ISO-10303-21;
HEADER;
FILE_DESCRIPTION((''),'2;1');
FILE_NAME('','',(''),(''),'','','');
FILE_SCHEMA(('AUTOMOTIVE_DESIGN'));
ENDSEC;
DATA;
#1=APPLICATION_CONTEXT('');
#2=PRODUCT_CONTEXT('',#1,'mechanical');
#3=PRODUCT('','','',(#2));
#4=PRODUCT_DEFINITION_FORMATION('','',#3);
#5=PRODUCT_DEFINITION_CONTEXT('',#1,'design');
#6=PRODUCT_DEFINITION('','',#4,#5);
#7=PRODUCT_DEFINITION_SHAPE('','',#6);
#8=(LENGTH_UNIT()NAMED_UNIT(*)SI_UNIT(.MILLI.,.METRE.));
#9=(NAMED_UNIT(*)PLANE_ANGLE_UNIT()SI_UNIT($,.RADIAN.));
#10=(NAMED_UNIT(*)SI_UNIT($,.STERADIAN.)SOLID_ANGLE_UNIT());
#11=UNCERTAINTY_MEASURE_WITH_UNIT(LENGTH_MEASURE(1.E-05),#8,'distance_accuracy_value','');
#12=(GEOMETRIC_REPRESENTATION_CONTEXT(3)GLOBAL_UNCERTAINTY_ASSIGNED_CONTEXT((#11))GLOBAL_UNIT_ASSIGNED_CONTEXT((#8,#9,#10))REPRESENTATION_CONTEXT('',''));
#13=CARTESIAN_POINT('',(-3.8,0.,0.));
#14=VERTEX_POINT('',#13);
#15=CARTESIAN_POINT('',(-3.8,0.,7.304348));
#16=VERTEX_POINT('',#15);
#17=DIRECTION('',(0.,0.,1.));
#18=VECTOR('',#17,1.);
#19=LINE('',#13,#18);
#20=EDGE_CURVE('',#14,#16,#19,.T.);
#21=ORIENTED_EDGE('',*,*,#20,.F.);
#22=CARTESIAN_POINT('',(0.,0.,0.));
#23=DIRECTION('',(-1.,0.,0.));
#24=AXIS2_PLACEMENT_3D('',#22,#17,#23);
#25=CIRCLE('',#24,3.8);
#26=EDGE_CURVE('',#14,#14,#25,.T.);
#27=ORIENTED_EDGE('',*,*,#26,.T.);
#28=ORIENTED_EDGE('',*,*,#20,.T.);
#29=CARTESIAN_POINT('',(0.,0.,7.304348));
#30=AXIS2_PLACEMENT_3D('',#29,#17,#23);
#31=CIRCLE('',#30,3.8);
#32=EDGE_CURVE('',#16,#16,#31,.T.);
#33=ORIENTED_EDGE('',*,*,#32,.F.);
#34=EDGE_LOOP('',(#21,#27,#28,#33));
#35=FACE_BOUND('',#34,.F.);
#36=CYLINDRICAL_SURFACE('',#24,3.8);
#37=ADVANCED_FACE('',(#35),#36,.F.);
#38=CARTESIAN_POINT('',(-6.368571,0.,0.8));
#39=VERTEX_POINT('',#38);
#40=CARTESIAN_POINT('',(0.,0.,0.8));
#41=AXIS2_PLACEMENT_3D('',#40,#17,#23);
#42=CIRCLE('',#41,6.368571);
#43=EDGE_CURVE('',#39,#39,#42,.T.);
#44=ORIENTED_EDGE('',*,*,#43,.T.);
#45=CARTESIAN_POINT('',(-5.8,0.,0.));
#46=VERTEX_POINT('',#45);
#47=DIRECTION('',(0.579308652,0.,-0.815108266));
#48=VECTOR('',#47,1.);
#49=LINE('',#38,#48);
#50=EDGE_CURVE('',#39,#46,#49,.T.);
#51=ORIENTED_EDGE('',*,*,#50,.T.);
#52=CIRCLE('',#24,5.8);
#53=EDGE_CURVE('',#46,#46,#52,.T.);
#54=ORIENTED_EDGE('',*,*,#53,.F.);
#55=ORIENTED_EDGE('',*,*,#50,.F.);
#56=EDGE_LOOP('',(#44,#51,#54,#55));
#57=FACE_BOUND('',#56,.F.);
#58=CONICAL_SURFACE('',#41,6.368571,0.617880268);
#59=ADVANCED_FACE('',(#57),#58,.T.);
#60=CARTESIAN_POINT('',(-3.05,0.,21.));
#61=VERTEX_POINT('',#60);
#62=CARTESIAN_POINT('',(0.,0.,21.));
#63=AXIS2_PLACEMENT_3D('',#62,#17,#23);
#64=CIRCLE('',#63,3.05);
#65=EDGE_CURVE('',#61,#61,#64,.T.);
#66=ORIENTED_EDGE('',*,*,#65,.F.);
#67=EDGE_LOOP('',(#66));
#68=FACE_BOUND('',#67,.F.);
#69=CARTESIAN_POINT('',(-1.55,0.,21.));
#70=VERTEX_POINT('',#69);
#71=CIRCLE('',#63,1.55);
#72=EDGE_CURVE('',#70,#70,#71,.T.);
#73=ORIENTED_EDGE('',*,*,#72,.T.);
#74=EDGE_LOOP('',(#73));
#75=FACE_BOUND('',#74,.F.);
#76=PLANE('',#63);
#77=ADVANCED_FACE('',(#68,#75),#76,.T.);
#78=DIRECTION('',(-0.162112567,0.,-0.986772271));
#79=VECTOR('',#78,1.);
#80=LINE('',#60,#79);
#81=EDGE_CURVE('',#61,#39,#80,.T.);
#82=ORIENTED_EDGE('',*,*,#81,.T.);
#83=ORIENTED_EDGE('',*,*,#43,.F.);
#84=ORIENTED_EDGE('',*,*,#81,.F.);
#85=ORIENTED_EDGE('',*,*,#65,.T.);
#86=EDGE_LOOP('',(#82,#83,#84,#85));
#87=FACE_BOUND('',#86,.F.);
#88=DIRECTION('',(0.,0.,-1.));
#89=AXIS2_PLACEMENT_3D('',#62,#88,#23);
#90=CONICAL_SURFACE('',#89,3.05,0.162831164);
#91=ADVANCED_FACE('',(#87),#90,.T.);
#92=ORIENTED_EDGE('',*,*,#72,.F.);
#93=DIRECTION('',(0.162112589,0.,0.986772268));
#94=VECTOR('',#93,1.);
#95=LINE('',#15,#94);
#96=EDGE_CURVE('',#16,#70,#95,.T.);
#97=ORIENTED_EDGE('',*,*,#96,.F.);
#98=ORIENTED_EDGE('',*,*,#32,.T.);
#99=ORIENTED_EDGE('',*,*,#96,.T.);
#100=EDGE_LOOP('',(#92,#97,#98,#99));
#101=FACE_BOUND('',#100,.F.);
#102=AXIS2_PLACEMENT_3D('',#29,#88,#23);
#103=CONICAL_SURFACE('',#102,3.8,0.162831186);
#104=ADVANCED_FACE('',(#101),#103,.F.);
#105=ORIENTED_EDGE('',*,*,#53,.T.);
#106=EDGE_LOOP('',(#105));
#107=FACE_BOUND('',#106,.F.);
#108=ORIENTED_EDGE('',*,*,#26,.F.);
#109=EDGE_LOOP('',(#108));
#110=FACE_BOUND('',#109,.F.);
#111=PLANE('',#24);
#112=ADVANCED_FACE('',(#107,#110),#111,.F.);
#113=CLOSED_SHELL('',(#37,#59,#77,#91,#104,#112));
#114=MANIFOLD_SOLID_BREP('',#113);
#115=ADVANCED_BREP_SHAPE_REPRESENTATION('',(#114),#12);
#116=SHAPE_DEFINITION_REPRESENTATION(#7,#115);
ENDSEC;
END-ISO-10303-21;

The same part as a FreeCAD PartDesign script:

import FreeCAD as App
import Part
import Sketcher

V = App.Vector

doc = App.newDocument("Part")
body = doc.addObject("PartDesign::Body", "Body")

# Sketch on XZ plane
sketch1 = body.newObject("Sketcher::SketchObject", "Sketch")
sketch1.AttachmentSupport = (doc.getObject("XZ_Plane"), [""])
sketch1.MapMode = "FlatFace"
sketch1.addGeometry([
    Part.LineSegment(V(-5.8, 0, 0), V(-3.8, 0, 0)),  # 0
    Part.LineSegment(V(-3.8, 0, 0), V(-3.8, 7.3, 0)),  # 1
    Part.LineSegment(V(-3.8, 7.3, 0), V(-1.6, 21, 0)),  # 2
    Part.LineSegment(V(-1.6, 21, 0), V(-3, 21, 0)),  # 3
    Part.LineSegment(V(-3, 21, 0), V(-6.4, 0.8, 0)),  # 4
    Part.LineSegment(V(-6.4, 0.8, 0), V(-5.8, 0, 0)),  # 5
], False)
sketch1.addConstraint([
    Sketcher.Constraint("Coincident", 0, 2, 1, 1),
    Sketcher.Constraint("Coincident", 1, 2, 2, 1),
    Sketcher.Constraint("Coincident", 2, 2, 3, 1),
    Sketcher.Constraint("Coincident", 3, 2, 4, 1),
    Sketcher.Constraint("Coincident", 4, 2, 5, 1),
    Sketcher.Constraint("Coincident", 5, 2, 0, 1),
    Sketcher.Constraint("Horizontal", 0),
    Sketcher.Constraint("Vertical", 1),
    Sketcher.Constraint("Horizontal", 3),
    Sketcher.Constraint("PointOnObject", 0, 2, -1),
    Sketcher.Constraint("Parallel", 2, 4),
    Sketcher.Constraint("DistanceX", 0, 1, 0, 2, 2.0),
    Sketcher.Constraint("DistanceX", 3, 2, 3, 1, 1.5),
    Sketcher.Constraint("DistanceY", -1, 1, 2, 2, 21.0),
    Sketcher.Constraint("DistanceX", 0, 2, -1, 1, 3.8),
    Sketcher.Constraint("DistanceY", -1, 1, 4, 2, 0.8),
    Sketcher.Constraint("DistanceX", 2, 2, -1, 1, 1.55),
    Sketcher.Constraint("Distance", 4, 20.470782),
])
revolution = body.newObject("PartDesign::Revolution", "Revolution")
revolution.Profile = sketch1
revolution.ReferenceAxis = (sketch1, ["V_Axis"])
revolution.Angle = 360

doc.recompute()
